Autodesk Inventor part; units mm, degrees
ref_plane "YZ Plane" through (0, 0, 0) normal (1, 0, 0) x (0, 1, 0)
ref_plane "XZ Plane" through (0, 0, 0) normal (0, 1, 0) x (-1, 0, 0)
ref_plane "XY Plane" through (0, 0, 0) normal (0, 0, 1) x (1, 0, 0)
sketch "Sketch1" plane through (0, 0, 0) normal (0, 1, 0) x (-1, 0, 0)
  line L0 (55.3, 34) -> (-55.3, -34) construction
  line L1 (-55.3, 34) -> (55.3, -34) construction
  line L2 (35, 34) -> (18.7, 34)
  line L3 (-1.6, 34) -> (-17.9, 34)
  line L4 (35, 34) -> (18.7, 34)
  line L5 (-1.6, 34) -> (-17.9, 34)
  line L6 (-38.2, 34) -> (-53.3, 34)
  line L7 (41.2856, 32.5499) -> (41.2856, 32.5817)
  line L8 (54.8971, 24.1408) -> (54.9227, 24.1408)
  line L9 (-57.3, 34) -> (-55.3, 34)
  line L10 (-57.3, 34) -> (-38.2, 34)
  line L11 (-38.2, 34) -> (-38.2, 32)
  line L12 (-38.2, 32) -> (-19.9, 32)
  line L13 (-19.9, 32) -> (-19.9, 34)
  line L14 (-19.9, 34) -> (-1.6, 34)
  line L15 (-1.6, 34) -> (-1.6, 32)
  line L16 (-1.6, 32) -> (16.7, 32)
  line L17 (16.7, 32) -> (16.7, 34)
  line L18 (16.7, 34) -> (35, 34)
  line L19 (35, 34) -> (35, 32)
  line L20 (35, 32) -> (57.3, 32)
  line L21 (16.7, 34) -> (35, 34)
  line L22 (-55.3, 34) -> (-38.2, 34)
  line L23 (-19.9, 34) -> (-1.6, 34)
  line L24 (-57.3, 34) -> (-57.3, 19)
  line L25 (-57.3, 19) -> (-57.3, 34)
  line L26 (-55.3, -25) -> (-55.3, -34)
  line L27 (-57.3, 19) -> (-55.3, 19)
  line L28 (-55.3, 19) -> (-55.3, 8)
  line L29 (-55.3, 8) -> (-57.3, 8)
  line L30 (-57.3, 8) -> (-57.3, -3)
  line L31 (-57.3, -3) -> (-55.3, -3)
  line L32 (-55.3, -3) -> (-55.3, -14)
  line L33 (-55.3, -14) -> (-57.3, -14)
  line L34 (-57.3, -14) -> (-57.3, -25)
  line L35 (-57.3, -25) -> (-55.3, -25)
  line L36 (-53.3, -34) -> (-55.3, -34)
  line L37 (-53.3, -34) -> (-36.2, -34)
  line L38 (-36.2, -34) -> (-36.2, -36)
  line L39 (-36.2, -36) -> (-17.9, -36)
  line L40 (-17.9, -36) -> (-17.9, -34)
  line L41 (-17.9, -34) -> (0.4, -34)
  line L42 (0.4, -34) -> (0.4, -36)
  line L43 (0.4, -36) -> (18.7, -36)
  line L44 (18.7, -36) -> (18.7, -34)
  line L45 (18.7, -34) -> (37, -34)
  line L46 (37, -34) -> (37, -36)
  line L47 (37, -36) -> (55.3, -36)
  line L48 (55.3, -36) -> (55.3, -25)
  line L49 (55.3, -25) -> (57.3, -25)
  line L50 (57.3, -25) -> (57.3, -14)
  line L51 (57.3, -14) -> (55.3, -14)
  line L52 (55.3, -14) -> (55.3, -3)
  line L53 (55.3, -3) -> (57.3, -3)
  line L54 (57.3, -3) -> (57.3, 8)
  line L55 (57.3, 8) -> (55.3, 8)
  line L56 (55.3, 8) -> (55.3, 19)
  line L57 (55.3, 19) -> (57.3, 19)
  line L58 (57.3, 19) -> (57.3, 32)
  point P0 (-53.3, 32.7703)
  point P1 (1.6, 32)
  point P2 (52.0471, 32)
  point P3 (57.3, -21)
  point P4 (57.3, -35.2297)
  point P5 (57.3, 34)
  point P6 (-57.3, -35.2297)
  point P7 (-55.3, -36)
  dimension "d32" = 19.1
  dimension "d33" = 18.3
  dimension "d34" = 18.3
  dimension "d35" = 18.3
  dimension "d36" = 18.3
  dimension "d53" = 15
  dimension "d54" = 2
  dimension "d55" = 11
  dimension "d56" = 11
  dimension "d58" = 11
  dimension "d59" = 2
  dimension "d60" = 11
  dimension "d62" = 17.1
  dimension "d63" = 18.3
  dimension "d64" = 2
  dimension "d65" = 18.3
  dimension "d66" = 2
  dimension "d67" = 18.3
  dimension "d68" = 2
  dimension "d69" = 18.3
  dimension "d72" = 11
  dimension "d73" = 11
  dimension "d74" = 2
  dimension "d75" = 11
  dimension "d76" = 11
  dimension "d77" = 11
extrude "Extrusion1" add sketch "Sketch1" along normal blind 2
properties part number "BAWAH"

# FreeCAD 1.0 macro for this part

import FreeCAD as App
import Part
import Sketcher
from FreeCAD import Vector


def add_polygon(sketch, points):
    """Adds a closed chain of lines whose ends are joined by coincident constraints."""
    first, n = sketch.GeometryCount, len(points)
    for a, b in zip(points, points[1:] + points[:1]):
        sketch.addGeometry(Part.LineSegment(App.Vector(*a, 0), App.Vector(*b, 0)), False)
    for i in range(n):
        sketch.addConstraint(Sketcher.Constraint("Coincident", first + i, 2, first + (i + 1) % n, 1))

doc = App.newDocument("Part")
body = doc.addObject("PartDesign::Body", "Body")

# Sketch on XZ plane
sketch1 = body.newObject("Sketcher::SketchObject", "Sketch")
sketch1.AttachmentSupport = (doc.getObject("XZ_Plane"), [""])
sketch1.MapMode = "FlatFace"
add_polygon(sketch1, [(-35, 32), (-35, 34), (-16.7, 34), (-16.7, 32), (1.6, 32), (1.6, 34), (19.9, 34), (19.9, 32), (38.2, 32), (38.2, 34), (57.3, 34), (57.3, 19), (55.3, 19), (55.3, 8), (57.3, 8), (57.3, -3), (55.3, -3), (55.3, -14), (57.3, -14), (57.3, -25), (55.3, -25), (55.3, -34), (36.2, -34), (36.2, -36), (17.9, -36), (17.9, -34), (-0.4, -34), (-0.4, -36), (-18.7, -36), (-18.7, -34), (-37, -34), (-37, -36), (-55.3, -36), (-55.3, -25), (-57.3, -25), (-57.3, -14), (-55.3, -14), (-55.3, -3), (-57.3, -3), (-57.3, 8), (-55.3, 8), (-55.3, 19), (-57.3, 19), (-57.3, 32)])  # lines 0-43
sketch1.addConstraint([
    Sketcher.Constraint("Vertical", 0),
    Sketcher.Constraint("Horizontal", 1),
    Sketcher.Constraint("Vertical", 2),
    Sketcher.Constraint("Horizontal", 3),
    Sketcher.Constraint("Vertical", 4),
    Sketcher.Constraint("Horizontal", 5),
    Sketcher.Constraint("Vertical", 6),
    Sketcher.Constraint("Horizontal", 7),
    Sketcher.Constraint("Vertical", 8),
    Sketcher.Constraint("Horizontal", 9),
    Sketcher.Constraint("Vertical", 10),
    Sketcher.Constraint("Horizontal", 11),
    Sketcher.Constraint("Vertical", 12),
    Sketcher.Constraint("Horizontal", 13),
    Sketcher.Constraint("Vertical", 14),
    Sketcher.Constraint("Horizontal", 15),
    Sketcher.Constraint("Vertical", 16),
    Sketcher.Constraint("Horizontal", 17),
    Sketcher.Constraint("Vertical", 18),
    Sketcher.Constraint("Horizontal", 19),
    Sketcher.Constraint("Vertical", 20),
    Sketcher.Constraint("Horizontal", 21),
    Sketcher.Constraint("Vertical", 22),
    Sketcher.Constraint("Horizontal", 23),
    Sketcher.Constraint("Vertical", 24),
    Sketcher.Constraint("Horizontal", 25),
    Sketcher.Constraint("Vertical", 26),
    Sketcher.Constraint("Horizontal", 27),
    Sketcher.Constraint("Vertical", 28),
    Sketcher.Constraint("Horizontal", 29),
    Sketcher.Constraint("Vertical", 30),
    Sketcher.Constraint("Horizontal", 31),
    Sketcher.Constraint("Vertical", 32),
    Sketcher.Constraint("Horizontal", 33),
    Sketcher.Constraint("Vertical", 34),
    Sketcher.Constraint("Horizontal", 35),
    Sketcher.Constraint("Vertical", 36),
    Sketcher.Constraint("Horizontal", 37),
    Sketcher.Constraint("Vertical", 38),
    Sketcher.Constraint("Horizontal", 39),
    Sketcher.Constraint("Vertical", 40),
    Sketcher.Constraint("Horizontal", 41),
    Sketcher.Constraint("Vertical", 42),
    Sketcher.Constraint("Horizontal", 43),
    Sketcher.Constraint("Symmetric", 19, 2, 32, 2, -2),
    Sketcher.Constraint("Symmetric", 17, 2, 34, 2, -2),
    Sketcher.Constraint("Symmetric", 15, 2, 36, 2, -2),
    Sketcher.Constraint("Symmetric", 13, 2, 38, 2, -2),
    Sketcher.Constraint("Symmetric", 11, 2, 40, 2, -2),
    Sketcher.Constraint("Horizontal", 1, 2, 4, 2),
    Sketcher.Constraint("Horizontal", 3, 2, 6, 2),
    Sketcher.Constraint("Horizontal", 5, 2, 8, 2),
    Sketcher.Constraint("Horizontal", 21, 2, 24, 2),
    Sketcher.Constraint("Horizontal", 23, 2, 26, 2),
    Sketcher.Constraint("Horizontal", 25, 2, 28, 2),
    Sketcher.Constraint("Horizontal", 27, 2, 30, 2),
    Sketcher.Constraint("Horizontal", 7, 2, 42, 2),
    Sketcher.Constraint("Vertical", 10, 2, 13, 2),
    Sketcher.Constraint("Vertical", 12, 2, 15, 2),
    Sketcher.Constraint("Vertical", 14, 2, 17, 2),
    Sketcher.Constraint("Vertical", 16, 2, 19, 2),
    Sketcher.Constraint("Vertical", 38, 2, 41, 2),
    Sketcher.Constraint("Equal", 1, 3),
    Sketcher.Constraint("Equal", 3, 5),
    Sketcher.Constraint("Equal", 5, 7),
    Sketcher.Constraint("Equal", 9, 21),
    Sketcher.Constraint("Equal", 7, 23),
    Sketcher.Constraint("Equal", 23, 25),
    Sketcher.Constraint("Equal", 25, 27),
    Sketcher.Constraint("Equal", 27, 29),
    Sketcher.Constraint("Equal", 29, 31),
    Sketcher.Constraint("Equal", 41, 0),
    Sketcher.Constraint("Equal", 12, 14),
    Sketcher.Constraint("Equal", 14, 16),
    Sketcher.Constraint("Equal", 16, 18),
    Sketcher.Constraint("Equal", 8, 22),
    Sketcher.Constraint("Equal", 18, 32),
    Sketcher.Constraint("DistanceX", 11, 2, 11, 1, 2.0),
    Sketcher.Constraint("DistanceY", 10, 2, 10, 1, 15.0),
    Sketcher.Constraint("DistanceY", 12, 2, 12, 1, 11.0),
    Sketcher.Constraint("DistanceX", 1, 1, 1, 2, 18.3),
    Sketcher.Constraint("DistanceX", 9, 1, 9, 2, 19.1),
    Sketcher.Constraint("DistanceY", -1, 1, 0, 2, 34.0),
])
pad1 = body.newObject("PartDesign::Pad", "Pad")
pad1.Profile = sketch1
pad1.Length = 2
pad1.Reversed = True

doc.recompute()
